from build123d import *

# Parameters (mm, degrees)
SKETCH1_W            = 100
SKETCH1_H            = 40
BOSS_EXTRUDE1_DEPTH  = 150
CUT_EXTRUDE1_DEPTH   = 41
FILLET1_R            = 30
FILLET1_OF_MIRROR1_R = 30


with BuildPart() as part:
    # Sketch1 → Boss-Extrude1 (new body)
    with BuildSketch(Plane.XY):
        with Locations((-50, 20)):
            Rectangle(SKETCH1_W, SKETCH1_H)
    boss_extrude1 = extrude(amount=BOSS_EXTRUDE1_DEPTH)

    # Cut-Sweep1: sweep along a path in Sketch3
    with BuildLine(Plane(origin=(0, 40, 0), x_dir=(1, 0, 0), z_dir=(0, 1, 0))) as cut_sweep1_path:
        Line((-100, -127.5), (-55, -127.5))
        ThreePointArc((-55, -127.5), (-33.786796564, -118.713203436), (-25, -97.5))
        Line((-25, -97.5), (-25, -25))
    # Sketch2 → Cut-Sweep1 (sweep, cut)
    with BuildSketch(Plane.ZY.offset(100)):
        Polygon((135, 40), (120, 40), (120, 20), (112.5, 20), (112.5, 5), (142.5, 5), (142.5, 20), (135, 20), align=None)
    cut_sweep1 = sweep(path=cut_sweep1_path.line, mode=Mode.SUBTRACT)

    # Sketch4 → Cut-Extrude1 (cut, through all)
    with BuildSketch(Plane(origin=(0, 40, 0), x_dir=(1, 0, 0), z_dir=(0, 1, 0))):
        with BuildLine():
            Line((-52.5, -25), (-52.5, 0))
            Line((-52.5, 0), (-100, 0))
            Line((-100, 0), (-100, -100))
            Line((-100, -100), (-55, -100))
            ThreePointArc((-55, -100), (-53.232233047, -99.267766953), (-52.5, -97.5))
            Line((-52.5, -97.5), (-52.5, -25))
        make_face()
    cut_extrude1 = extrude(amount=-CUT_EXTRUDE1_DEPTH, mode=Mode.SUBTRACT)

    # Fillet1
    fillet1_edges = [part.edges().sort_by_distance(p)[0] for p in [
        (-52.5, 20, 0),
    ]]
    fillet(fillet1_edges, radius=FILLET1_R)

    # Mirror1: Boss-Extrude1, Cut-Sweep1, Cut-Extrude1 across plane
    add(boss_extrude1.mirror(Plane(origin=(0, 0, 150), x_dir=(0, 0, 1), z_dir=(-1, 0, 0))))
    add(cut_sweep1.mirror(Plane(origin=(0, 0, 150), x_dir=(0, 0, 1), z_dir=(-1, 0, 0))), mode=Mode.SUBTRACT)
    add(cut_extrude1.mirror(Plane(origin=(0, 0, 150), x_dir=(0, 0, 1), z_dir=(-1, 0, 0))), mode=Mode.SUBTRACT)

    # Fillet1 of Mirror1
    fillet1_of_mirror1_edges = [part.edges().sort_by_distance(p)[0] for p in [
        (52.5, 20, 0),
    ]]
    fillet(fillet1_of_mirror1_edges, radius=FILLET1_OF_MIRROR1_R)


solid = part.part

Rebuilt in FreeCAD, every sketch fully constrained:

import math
import FreeCAD as App
import Part
import Sketcher


def edges_at(feature, points):
    """Names of the edges that pass closest to the given points."""
    edges = feature.Shape.Edges
    near = lambda p: min(range(len(edges)), key=lambda i: edges[i].distToShape(Part.Vertex(*p))[0])
    return sorted({f"Edge{near(p) + 1}" for p in points})

doc = App.newDocument("Part")
params = doc.addObject("Spreadsheet::Sheet", "Params")
for row, (alias, value) in enumerate([
    ("sketch1_width", "100 mm"),
    ("sketch1_height", "40 mm"),
    ("pad1_length", "150 mm"),
    ("sketch2_width", "20 mm"),
    ("sketch2_width2", "15 mm"),
    ("sketch2_height", "30 mm"),
    ("sketch3_radius", "30 mm"),
    ("sketch3_width", "45 mm"),
    ("sketch3_height", "72.5 mm"),
    ("sketch4_radius", "2.5 mm"),
    ("sketch4_width", "45 mm"),
    ("sketch4_height", "100 mm"),
    ("fillet_radius", "30 mm"),
    ("fillet2_radius", "30 mm"),
], start=1):
    params.set(f"A{row}", alias)
    params.set(f"B{row}", "=" + value)
    params.setAlias(f"B{row}", alias)

body = doc.addObject("PartDesign::Body", "Body")

sketch1 = doc.addObject("Sketcher::SketchObject", "Sketch")
body.addObject(sketch1)
sketch1.AttachmentSupport = (doc.XY_Plane, [""])
sketch1.MapMode = "FlatFace"
sketch1.addGeometry(Part.LineSegment(App.Vector(-100, 40, 0), App.Vector(-100, 0, 0)), False)
sketch1.addGeometry(Part.LineSegment(App.Vector(-100, 0, 0), App.Vector(0, 0, 0)), False)
sketch1.addGeometry(Part.LineSegment(App.Vector(0, 0, 0), App.Vector(0, 40, 0)), False)
sketch1.addGeometry(Part.LineSegment(App.Vector(0, 40, 0), App.Vector(-100, 40, 0)), False)
sketch1.addConstraint(Sketcher.Constraint("Coincident", 0, 2, 1, 1))
sketch1.addConstraint(Sketcher.Constraint("Coincident", 1, 2, 2, 1))
sketch1.addConstraint(Sketcher.Constraint("Coincident", 2, 2, 3, 1))
sketch1.addConstraint(Sketcher.Constraint("Coincident", 3, 2, 0, 1))
sketch1.addConstraint(Sketcher.Constraint("Vertical", 0))
sketch1.addConstraint(Sketcher.Constraint("Horizontal", 1))
sketch1.addConstraint(Sketcher.Constraint("Vertical", 2))
sketch1.addConstraint(Sketcher.Constraint("Horizontal", 3))
sketch1.addConstraint(Sketcher.Constraint("Coincident", 1, 2, -1, 1))
sketch1.addConstraint(Sketcher.Constraint("DistanceX", 1, 1, 1, 2, 100.0))
sketch1.addConstraint(Sketcher.Constraint("DistanceY", 0, 2, 0, 1, 40.0))
sketch1.setExpression("Constraints[9]", "Params.sketch1_width")
sketch1.setExpression("Constraints[10]", "Params.sketch1_height")
pad1 = doc.addObject("PartDesign::Pad", "Pad")
body.addObject(pad1)
pad1.Profile = sketch1
pad1.setExpression("Length", "Params.pad1_length")

sketch2 = doc.addObject("Sketcher::SketchObject", "Sketch001")
body.addObject(sketch2)
sketch2.AttachmentSupport = (doc.YZ_Plane, [""])
sketch2.MapMode = "FlatFace"
sketch2.AttachmentOffset = App.Placement(App.Vector(0, 0, -100), App.Rotation())
sketch2.addGeometry(Part.LineSegment(App.Vector(40, 135, 0), App.Vector(40, 120, 0)), False)
sketch2.addGeometry(Part.LineSegment(App.Vector(40, 120, 0), App.Vector(20, 120, 0)), False)
sketch2.addGeometry(Part.LineSegment(App.Vector(20, 120, 0), App.Vector(20, 112, 0)), False)
sketch2.addGeometry(Part.LineSegment(App.Vector(20, 112, 0), App.Vector(5, 112, 0)), False)
sketch2.addGeometry(Part.LineSegment(App.Vector(5, 112, 0), App.Vector(5, 142, 0)), False)
sketch2.addGeometry(Part.LineSegment(App.Vector(5, 142, 0), App.Vector(20, 142, 0)), False)
sketch2.addGeometry(Part.LineSegment(App.Vector(20, 142, 0), App.Vector(20, 135, 0)), False)
sketch2.addGeometry(Part.LineSegment(App.Vector(20, 135, 0), App.Vector(40, 135, 0)), False)
sketch2.addConstraint(Sketcher.Constraint("Coincident", 0, 2, 1, 1))
sketch2.addConstraint(Sketcher.Constraint("Coincident", 1, 2, 2, 1))
sketch2.addConstraint(Sketcher.Constraint("Coincident", 2, 2, 3, 1))
sketch2.addConstraint(Sketcher.Constraint("Coincident", 3, 2, 4, 1))
sketch2.addConstraint(Sketcher.Constraint("Coincident", 4, 2, 5, 1))
sketch2.addConstraint(Sketcher.Constraint("Coincident", 5, 2, 6, 1))
sketch2.addConstraint(Sketcher.Constraint("Coincident", 6, 2, 7, 1))
sketch2.addConstraint(Sketcher.Constraint("Coincident", 7, 2, 0, 1))
sketch2.addConstraint(Sketcher.Constraint("Vertical", 0))
sketch2.addConstraint(Sketcher.Constraint("Horizontal", 1))
sketch2.addConstraint(Sketcher.Constraint("Vertical", 2))
sketch2.addConstraint(Sketcher.Constraint("Horizontal", 3))
sketch2.addConstraint(Sketcher.Constraint("Vertical", 4))
sketch2.addConstraint(Sketcher.Constraint("Horizontal", 5))
sketch2.addConstraint(Sketcher.Constraint("Vertical", 6))
sketch2.addConstraint(Sketcher.Constraint("Horizontal", 7))
sketch2.addConstraint(Sketcher.Constraint("Vertical", 2, 2, 5, 2))
sketch2.addConstraint(Sketcher.Constraint("Equal", 5, 0))
sketch2.addConstraint(Sketcher.Constraint("Equal", 2, 6))
sketch2.addConstraint(Sketcher.Constraint("DistanceX", 1, 2, 1, 1, 20.0))
sketch2.addConstraint(Sketcher.Constraint("DistanceX", 3, 2, 3, 1, 15.0))
sketch2.addConstraint(Sketcher.Constraint("DistanceY", 4, 1, 4, 2, 30.0))
sketch2.addConstraint(Sketcher.Constraint("DistanceX", -1, 1, 0, 2, 40.0))
sketch2.addConstraint(Sketcher.Constraint("DistanceY", -1, 1, 0, 2, 120.0))
sketch2.setExpression("Constraints[19]", "Params.sketch2_width")
sketch2.setExpression("Constraints[20]", "Params.sketch2_width2")
sketch2.setExpression("Constraints[21]", "Params.sketch2_height")

sketch3 = doc.addObject("Sketcher::SketchObject", "Sketch002")
body.addObject(sketch3)
sketch3.AttachmentSupport = (doc.XZ_Plane, [""])
sketch3.MapMode = "FlatFace"
sketch3.AttachmentOffset = App.Placement(App.Vector(0, 0, -40), App.Rotation())
sketch3.addGeometry(Part.LineSegment(App.Vector(-100, 128, 0), App.Vector(-55, 128, 0)), False)
sketch3.addGeometry(Part.ArcOfCircle(Part.Circle(App.Vector(-55, 98, 0), App.Vector(0, 0, 1), 30), math.radians(0), math.radians(90)), False)
sketch3.addGeometry(Part.LineSegment(App.Vector(-25, 98, 0), App.Vector(-25, 25, 0)), False)
sketch3.addConstraint(Sketcher.Constraint("Tangent", 0, 2, 1, 2))
sketch3.addConstraint(Sketcher.Constraint("Tangent", 1, 1, 2, 1))
sketch3.addConstraint(Sketcher.Constraint("Horizontal", 0))
sketch3.addConstraint(Sketcher.Constraint("Vertical", 2))
sketch3.addConstraint(Sketcher.Constraint("Radius", 1, 30.0))
sketch3.addConstraint(Sketcher.Constraint("DistanceX", 0, 1, 0, 2, 45.0))
sketch3.addConstraint(Sketcher.Constraint("DistanceY", 2, 2, 2, 1, 72.5))
sketch3.addConstraint(Sketcher.Constraint("DistanceX", 1, 3, -1, 1, 55.0))
sketch3.addConstraint(Sketcher.Constraint("DistanceY", -1, 1, 2, 2, 25.0))
sketch3.setExpression("Constraints[4]", "Params.sketch3_radius")
sketch3.setExpression("Constraints[5]", "Params.sketch3_width")
sketch3.setExpression("Constraints[6]", "Params.sketch3_height")
doc.recompute()

subtractivepipe = doc.addObject("PartDesign::SubtractivePipe", "SubtractivePipe")
body.addObject(subtractivepipe)
subtractivepipe.Profile = sketch2
subtractivepipe.Spine = (sketch3, ["Edge1", "Edge2", "Edge3"])

sketch4 = doc.addObject("Sketcher::SketchObject", "Sketch003")
body.addObject(sketch4)
sketch4.AttachmentSupport = (doc.XZ_Plane, [""])
sketch4.MapMode = "FlatFace"
sketch4.AttachmentOffset = App.Placement(App.Vector(0, 0, -40), App.Rotation())
sketch4.addGeometry(Part.LineSegment(App.Vector(-52.5, 0, 0), App.Vector(-100, 0, 0)), False)
sketch4.addGeometry(Part.LineSegment(App.Vector(-100, 0, 0), App.Vector(-100, 100, 0)), False)
sketch4.addGeometry(Part.LineSegment(App.Vector(-100, 100, 0), App.Vector(-55, 100, 0)), False)
sketch4.addGeometry(Part.ArcOfCircle(Part.Circle(App.Vector(-55, 97.5, 0), App.Vector(0, 0, 1), 2.5), math.radians(0), math.radians(90)), False)
sketch4.addGeometry(Part.LineSegment(App.Vector(-52.5, 97.5, 0), App.Vector(-52.5, 0, 0)), False)
sketch4.addConstraint(Sketcher.Constraint("Coincident", 0, 2, 1, 1))
sketch4.addConstraint(Sketcher.Constraint("Coincident", 1, 2, 2, 1))
sketch4.addConstraint(Sketcher.Constraint("Tangent", 2, 2, 3, 2))
sketch4.addConstraint(Sketcher.Constraint("Tangent", 3, 1, 4, 1))
sketch4.addConstraint(Sketcher.Constraint("Coincident", 4, 2, 0, 1))
sketch4.addConstraint(Sketcher.Constraint("Horizontal", 0))
sketch4.addConstraint(Sketcher.Constraint("Vertical", 1))
sketch4.addConstraint(Sketcher.Constraint("Horizontal", 2))
sketch4.addConstraint(Sketcher.Constraint("Vertical", 4))
sketch4.addConstraint(Sketcher.Constraint("PointOnObject", 0, 2, -1))
sketch4.addConstraint(Sketcher.Constraint("Radius", 3, 2.5))
sketch4.addConstraint(Sketcher.Constraint("DistanceX", 2, 1, 2, 2, 45.0))
sketch4.addConstraint(Sketcher.Constraint("DistanceY", 1, 1, 1, 2, 100.0))
sketch4.addConstraint(Sketcher.Constraint("DistanceX", 3, 3, -1, 1, 55.0))
sketch4.setExpression("Constraints[10]", "Params.sketch4_radius")
sketch4.setExpression("Constraints[11]", "Params.sketch4_width")
sketch4.setExpression("Constraints[12]", "Params.sketch4_height")
pocket1 = doc.addObject("PartDesign::Pocket", "Pocket")
body.addObject(pocket1)
pocket1.Profile = sketch4
pocket1.Type = "ThroughAll"
pocket1.Reversed = True
doc.recompute()

fillet = doc.addObject("PartDesign::Fillet", "Fillet")
body.addObject(fillet)
fillet.Base = (pocket1, edges_at(pocket1, [(-52.5, 20, 0)]))
fillet.setExpression("Radius", "Params.fillet_radius")
doc.recompute()

mirrored = doc.addObject("PartDesign::Mirrored", "Mirrored")
body.addObject(mirrored)
mirrored.Originals = [pad1, subtractivepipe, pocket1]
mirrored.MirrorPlane = (doc.YZ_Plane, [""])
body.Tip = mirrored
doc.recompute()

fillet2 = doc.addObject("PartDesign::Fillet", "Fillet001")
body.addObject(fillet2)
fillet2.Base = (mirrored, edges_at(mirrored, [(52.5, 20, 0)]))
fillet2.setExpression("Radius", "Params.fillet2_radius")

doc.recompute()
